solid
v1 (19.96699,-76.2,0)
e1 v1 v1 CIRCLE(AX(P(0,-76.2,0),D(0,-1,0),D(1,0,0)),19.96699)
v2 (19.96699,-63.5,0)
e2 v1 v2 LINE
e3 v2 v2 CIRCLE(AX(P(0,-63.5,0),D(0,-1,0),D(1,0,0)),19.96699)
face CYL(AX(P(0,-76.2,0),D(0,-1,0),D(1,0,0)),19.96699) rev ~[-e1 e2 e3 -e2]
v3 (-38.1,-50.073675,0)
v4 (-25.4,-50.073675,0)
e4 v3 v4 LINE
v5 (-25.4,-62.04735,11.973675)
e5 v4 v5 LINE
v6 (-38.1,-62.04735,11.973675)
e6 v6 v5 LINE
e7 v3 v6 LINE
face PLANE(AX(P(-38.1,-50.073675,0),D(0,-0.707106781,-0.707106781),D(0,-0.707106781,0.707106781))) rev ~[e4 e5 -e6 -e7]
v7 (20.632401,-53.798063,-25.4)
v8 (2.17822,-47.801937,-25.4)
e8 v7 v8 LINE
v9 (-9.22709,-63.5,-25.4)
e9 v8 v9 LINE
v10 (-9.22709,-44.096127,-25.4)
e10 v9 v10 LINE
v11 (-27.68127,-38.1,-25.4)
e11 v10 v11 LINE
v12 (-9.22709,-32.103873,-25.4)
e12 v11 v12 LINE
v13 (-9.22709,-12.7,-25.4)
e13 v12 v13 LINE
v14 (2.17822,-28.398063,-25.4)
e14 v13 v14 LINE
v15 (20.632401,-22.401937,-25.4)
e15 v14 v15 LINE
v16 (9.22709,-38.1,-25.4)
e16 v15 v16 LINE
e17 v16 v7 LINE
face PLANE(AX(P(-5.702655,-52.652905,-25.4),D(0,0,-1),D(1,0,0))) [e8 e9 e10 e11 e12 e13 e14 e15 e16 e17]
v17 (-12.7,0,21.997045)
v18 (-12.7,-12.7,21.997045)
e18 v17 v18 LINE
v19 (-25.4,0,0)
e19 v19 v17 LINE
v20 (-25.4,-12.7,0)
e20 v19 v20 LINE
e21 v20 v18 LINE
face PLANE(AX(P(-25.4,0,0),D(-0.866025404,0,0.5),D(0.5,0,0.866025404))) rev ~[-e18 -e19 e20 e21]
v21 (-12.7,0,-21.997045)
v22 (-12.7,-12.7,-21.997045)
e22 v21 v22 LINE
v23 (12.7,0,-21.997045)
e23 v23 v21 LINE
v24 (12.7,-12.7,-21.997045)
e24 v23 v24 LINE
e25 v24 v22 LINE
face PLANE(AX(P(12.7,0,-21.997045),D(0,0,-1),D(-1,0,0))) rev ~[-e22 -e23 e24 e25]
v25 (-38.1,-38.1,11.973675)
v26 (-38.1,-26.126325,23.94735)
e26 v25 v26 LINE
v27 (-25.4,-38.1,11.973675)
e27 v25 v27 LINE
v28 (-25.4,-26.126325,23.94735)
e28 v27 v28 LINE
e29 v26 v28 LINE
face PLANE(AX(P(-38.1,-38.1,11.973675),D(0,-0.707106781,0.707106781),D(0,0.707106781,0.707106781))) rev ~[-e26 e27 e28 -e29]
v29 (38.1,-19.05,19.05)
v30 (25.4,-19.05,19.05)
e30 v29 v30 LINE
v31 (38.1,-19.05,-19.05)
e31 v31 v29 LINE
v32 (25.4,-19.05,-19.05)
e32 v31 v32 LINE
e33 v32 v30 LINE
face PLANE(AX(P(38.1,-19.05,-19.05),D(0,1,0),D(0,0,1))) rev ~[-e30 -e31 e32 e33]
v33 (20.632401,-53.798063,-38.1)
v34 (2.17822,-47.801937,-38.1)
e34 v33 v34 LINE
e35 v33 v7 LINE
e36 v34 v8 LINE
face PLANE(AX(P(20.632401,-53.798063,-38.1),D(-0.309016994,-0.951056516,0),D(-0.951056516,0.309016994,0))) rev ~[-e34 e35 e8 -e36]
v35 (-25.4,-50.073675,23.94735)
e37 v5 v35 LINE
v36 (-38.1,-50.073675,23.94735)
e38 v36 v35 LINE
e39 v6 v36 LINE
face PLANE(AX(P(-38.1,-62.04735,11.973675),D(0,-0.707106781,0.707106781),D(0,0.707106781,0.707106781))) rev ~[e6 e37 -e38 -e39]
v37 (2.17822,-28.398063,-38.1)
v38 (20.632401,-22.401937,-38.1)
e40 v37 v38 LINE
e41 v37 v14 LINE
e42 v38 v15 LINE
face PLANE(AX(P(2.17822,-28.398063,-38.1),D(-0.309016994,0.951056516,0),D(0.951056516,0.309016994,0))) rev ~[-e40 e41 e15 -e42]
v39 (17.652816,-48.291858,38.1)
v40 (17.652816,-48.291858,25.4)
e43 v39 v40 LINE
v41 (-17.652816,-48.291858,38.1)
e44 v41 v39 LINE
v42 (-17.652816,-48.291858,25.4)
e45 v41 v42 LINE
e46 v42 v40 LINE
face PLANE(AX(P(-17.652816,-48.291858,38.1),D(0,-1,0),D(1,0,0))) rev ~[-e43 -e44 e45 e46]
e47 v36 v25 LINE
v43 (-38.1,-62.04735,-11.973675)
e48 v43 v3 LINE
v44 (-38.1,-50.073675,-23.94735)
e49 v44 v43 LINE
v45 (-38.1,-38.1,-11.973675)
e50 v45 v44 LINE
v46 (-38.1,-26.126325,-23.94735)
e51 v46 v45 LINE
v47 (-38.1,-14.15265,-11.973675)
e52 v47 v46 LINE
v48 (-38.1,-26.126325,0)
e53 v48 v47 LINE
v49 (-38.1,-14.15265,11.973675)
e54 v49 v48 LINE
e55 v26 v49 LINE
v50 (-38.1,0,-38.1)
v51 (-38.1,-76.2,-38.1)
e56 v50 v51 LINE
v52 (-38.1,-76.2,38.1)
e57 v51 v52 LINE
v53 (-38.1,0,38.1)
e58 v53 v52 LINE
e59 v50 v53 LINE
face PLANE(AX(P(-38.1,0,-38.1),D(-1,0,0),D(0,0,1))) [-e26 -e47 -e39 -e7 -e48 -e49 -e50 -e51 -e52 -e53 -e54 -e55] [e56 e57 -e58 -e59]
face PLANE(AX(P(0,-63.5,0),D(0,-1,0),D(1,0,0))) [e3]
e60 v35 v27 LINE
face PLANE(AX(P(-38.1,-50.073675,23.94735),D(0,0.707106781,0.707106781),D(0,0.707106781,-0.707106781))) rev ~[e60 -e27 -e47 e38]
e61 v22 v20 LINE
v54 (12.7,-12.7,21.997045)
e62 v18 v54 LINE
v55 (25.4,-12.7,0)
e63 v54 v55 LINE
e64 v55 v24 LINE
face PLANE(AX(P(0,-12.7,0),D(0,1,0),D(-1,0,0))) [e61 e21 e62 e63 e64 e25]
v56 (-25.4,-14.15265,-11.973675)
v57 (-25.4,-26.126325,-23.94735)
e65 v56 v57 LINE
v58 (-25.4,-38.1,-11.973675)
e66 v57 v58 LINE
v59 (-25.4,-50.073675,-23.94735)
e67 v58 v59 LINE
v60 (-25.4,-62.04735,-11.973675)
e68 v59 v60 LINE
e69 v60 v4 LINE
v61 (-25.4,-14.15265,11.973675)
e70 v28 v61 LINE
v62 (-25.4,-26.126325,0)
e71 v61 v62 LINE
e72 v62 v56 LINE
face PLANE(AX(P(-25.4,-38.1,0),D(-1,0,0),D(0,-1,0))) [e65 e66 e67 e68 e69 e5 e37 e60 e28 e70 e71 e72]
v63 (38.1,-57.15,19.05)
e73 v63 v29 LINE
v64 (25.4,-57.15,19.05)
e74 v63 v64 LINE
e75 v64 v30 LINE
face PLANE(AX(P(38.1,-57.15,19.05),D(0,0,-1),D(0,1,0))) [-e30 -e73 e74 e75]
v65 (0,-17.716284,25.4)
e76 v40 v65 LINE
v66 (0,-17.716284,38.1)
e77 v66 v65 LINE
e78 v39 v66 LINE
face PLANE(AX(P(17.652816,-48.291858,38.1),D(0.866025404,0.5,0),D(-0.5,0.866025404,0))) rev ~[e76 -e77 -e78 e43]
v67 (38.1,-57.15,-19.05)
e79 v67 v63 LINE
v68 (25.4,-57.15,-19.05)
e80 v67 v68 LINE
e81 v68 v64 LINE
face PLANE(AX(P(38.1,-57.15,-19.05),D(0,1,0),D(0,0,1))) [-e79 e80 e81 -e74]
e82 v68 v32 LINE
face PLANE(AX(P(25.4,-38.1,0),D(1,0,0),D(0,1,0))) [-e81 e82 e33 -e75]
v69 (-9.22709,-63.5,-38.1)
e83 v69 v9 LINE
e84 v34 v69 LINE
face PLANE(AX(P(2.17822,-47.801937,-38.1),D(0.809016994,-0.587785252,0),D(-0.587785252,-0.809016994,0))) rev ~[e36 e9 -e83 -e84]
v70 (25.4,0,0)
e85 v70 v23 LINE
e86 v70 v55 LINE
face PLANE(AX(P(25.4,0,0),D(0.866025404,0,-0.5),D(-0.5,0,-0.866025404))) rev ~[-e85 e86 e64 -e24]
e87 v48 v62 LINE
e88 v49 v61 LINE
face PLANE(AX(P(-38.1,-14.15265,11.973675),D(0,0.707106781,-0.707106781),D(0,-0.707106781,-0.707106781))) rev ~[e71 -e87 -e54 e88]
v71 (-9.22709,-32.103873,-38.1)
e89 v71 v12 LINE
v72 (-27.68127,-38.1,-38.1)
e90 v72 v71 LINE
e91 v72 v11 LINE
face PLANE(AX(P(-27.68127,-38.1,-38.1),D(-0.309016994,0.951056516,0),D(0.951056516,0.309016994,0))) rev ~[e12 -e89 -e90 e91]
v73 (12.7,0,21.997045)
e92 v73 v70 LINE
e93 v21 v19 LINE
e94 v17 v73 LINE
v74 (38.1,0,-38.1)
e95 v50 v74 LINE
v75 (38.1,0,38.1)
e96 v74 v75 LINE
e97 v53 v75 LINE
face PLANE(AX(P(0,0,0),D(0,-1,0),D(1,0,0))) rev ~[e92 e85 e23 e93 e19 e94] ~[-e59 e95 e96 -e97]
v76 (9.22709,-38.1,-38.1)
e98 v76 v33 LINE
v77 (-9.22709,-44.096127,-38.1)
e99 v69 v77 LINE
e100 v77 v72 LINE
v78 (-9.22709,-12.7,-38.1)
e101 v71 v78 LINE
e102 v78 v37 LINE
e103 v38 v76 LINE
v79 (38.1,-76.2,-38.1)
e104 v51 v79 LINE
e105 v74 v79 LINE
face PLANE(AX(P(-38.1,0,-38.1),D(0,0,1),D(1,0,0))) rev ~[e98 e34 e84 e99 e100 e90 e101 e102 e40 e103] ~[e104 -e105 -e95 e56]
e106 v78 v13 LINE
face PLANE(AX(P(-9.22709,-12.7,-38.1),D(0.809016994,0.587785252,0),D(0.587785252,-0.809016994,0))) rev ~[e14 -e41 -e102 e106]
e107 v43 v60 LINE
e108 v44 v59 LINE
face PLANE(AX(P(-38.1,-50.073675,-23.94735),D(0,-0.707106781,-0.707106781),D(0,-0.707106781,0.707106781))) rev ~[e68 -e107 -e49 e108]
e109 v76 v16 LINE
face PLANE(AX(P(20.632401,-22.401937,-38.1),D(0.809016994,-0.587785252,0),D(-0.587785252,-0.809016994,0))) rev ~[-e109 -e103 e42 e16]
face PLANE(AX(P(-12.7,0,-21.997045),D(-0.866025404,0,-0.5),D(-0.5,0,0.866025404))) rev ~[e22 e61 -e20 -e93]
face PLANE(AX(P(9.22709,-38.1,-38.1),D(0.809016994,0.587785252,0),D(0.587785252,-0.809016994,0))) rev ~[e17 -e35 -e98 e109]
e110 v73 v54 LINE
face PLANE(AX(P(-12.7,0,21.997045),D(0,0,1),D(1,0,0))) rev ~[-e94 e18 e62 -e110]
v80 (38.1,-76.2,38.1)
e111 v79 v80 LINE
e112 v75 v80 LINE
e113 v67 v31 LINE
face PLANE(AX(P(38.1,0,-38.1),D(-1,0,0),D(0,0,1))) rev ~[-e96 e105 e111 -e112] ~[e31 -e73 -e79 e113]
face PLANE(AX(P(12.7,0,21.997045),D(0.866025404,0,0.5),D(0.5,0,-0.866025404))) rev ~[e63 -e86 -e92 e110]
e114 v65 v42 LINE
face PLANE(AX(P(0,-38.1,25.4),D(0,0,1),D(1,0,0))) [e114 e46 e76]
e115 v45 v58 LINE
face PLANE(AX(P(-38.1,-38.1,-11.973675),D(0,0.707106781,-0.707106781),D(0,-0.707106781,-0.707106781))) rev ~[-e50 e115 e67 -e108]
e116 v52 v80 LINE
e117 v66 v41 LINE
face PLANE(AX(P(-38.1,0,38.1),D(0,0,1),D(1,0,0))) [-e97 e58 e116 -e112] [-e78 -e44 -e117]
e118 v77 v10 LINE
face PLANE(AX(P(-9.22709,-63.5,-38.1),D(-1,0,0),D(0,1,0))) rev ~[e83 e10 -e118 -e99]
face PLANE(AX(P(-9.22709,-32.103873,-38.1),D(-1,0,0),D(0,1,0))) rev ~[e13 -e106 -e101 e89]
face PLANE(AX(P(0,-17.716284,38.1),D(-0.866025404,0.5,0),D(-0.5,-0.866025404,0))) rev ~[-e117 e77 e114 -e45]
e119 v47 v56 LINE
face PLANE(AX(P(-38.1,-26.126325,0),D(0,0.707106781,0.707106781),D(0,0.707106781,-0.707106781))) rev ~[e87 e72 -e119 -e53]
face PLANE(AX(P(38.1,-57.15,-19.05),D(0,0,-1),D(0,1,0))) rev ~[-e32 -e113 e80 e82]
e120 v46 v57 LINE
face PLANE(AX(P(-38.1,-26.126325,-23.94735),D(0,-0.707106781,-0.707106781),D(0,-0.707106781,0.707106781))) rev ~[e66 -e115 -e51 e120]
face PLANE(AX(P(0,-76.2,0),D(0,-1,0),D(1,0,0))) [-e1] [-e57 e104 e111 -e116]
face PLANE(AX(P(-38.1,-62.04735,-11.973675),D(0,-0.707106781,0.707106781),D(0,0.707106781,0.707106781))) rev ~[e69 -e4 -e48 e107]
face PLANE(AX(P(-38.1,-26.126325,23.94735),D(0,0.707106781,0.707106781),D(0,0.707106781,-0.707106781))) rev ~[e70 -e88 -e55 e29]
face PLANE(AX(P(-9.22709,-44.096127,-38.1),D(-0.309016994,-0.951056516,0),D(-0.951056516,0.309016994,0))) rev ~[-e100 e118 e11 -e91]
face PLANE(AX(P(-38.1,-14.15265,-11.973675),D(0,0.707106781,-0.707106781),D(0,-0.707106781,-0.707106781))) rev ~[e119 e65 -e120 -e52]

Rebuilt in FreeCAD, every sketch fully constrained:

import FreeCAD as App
import Part
import Sketcher
Q = App.Units.Quantity


def add_polygon(sketch, points):
    """Adds a closed chain of lines whose ends are joined by coincident constraints."""
    first, n = sketch.GeometryCount, len(points)
    for a, b in zip(points, points[1:] + points[:1]):
        sketch.addGeometry(Part.LineSegment(App.Vector(*a, 0), App.Vector(*b, 0)), False)
    for i in range(n):
        sketch.addConstraint(Sketcher.Constraint("Coincident", first + i, 2, first + (i + 1) % n, 1))

doc = App.newDocument("Part")
body = doc.addObject("PartDesign::Body", "Body")

sketch1 = body.newObject("Sketcher::SketchObject", "Sketch")
sketch1.AttachmentSupport = (doc.getObject("XZ_Plane"), [""])
sketch1.MapMode = "FlatFace"
add_polygon(sketch1, [(-38, 38), (-38, -38), (38, -38), (38, 38)])
sketch1.addConstraint(Sketcher.Constraint("Vertical", 0))
sketch1.addConstraint(Sketcher.Constraint("Horizontal", 1))
sketch1.addConstraint(Sketcher.Constraint("Vertical", 2))
sketch1.addConstraint(Sketcher.Constraint("Horizontal", 3))
sketch1.addConstraint(Sketcher.Constraint("Symmetric", 0, 2, 2, 2, -1, 1))
sketch1.addConstraint(Sketcher.Constraint("Equal", 3, 0))
sketch1.addConstraint(Sketcher.Constraint("DistanceX", 1, 1, 1, 2, Q("3 in")))
pad1 = body.newObject("PartDesign::Pad", "Pad")
pad1.Profile = sketch1
pad1.Length = Q("3 in")

sketch2 = body.newObject("Sketcher::SketchObject", "Sketch001")
sketch2.AttachmentSupport = (doc.getObject("XZ_Plane"), [""])
sketch2.MapMode = "FlatFace"
sketch2.AttachmentOffset = App.Placement(App.Vector(0, 0, 3 * 25.4), App.Rotation())
sketch2.addGeometry(Part.Circle(App.Vector(0, 0, 0), App.Vector(0, 0, 1), 20), False)
sketch2.addConstraint(Sketcher.Constraint("Coincident", 0, 3, -1, 1))
sketch2.addConstraint(Sketcher.Constraint("Diameter", 0, Q("39.93398 mm")))
pocket1 = body.newObject("PartDesign::Pocket", "Pocket")
pocket1.Profile = sketch2
pocket1.Length = Q("0.5 in")

sketch3 = body.newObject("Sketcher::SketchObject", "Sketch002")
sketch3.AttachmentSupport = (doc.getObject("XY_Plane"), [""])
sketch3.MapMode = "FlatFace"
sketch3.AttachmentOffset = App.Placement(App.Vector(0, 0, 1.5 * 25.4), App.Rotation())
add_polygon(sketch3, [(18, -48), (0, -18), (-18, -48)])
sketch3.addConstraint(Sketcher.Constraint("Horizontal", 2))
sketch3.addConstraint(Sketcher.Constraint("PointOnObject", 0, 2, -2))
sketch3.addConstraint(Sketcher.Constraint("Equal", 0, 1))
sketch3.addConstraint(Sketcher.Constraint("Angle", 0, Q("120 deg")))
sketch3.addConstraint(Sketcher.Constraint("DistanceX", 2, 1, 2, 2, Q("35.305631 mm")))
sketch3.addConstraint(Sketcher.Constraint("DistanceY", 0, 2, -1, 1, Q("17.716284 mm")))
pocket2 = body.newObject("PartDesign::Pocket", "Pocket001")
pocket2.Profile = sketch3
pocket2.Length = Q("0.5 in")

sketch4 = body.newObject("Sketcher::SketchObject", "Sketch003")
sketch4.AttachmentSupport = (doc.getObject("YZ_Plane"), [""])
sketch4.MapMode = "FlatFace"
sketch4.AttachmentOffset = App.Placement(App.Vector(0, 0, 1.5 * 25.4), App.Rotation())
add_polygon(sketch4, [(-57, 19), (-57, -19), (-19, -19), (-19, 19)])
sketch4.addConstraint(Sketcher.Constraint("Vertical", 0))
sketch4.addConstraint(Sketcher.Constraint("Horizontal", 1))
sketch4.addConstraint(Sketcher.Constraint("Vertical", 2))
sketch4.addConstraint(Sketcher.Constraint("Horizontal", 3))
sketch4.addConstraint(Sketcher.Constraint("Equal", 3, 0))
sketch4.addConstraint(Sketcher.Constraint("DistanceX", 1, 1, 1, 2, Q("1.5 in")))
sketch4.addConstraint(Sketcher.Constraint("DistanceX", 0, 2, -1, 1, Q("2.25 in")))
sketch4.addConstraint(Sketcher.Constraint("DistanceY", 0, 2, -1, 1, Q("0.75 in")))
pocket3 = body.newObject("PartDesign::Pocket", "Pocket002")
pocket3.Profile = sketch4
pocket3.Length = Q("0.5 in")

sketch5 = body.newObject("Sketcher::SketchObject", "Sketch004")
sketch5.AttachmentSupport = (doc.getObject("YZ_Plane"), [""])
sketch5.MapMode = "FlatFace"
sketch5.AttachmentOffset = App.Placement(App.Vector(0, 0, -1.5 * 25.4), App.Rotation())
add_polygon(sketch5, [(-38, -12), (-50, -24), (-62, -12), (-50, 0), (-62, 12), (-50, 24), (-38, 12), (-26, 24), (-14, 12), (-26, 0), (-14, -12), (-26, -24)])
sketch5.addConstraint(Sketcher.Constraint("Symmetric", 1, 2, 3, 2, -1))
sketch5.addConstraint(Sketcher.Constraint("Symmetric", 0, 2, 4, 2, -1))
sketch5.addConstraint(Sketcher.Constraint("Symmetric", 7, 2, 9, 2, -1))
sketch5.addConstraint(Sketcher.Constraint("Symmetric", 6, 2, 10, 2, -1))
sketch5.addConstraint(Sketcher.Constraint("Symmetric", 5, 2, 11, 2, -1))
sketch5.addConstraint(Sketcher.Constraint("PointOnObject", 2, 2, -1))
sketch5.addConstraint(Sketcher.Constraint("PointOnObject", 8, 2, -1))
sketch5.addConstraint(Sketcher.Constraint("Perpendicular", 0, 1))
sketch5.addConstraint(Sketcher.Constraint("Perpendicular", 1, 2))
sketch5.addConstraint(Sketcher.Constraint("Perpendicular", 2, 3))
sketch5.addConstraint(Sketcher.Constraint("Perpendicular", 5, 6))
sketch5.addConstraint(Sketcher.Constraint("Perpendicular", 6, 7))
sketch5.addConstraint(Sketcher.Constraint("Perpendicular", 7, 8))
sketch5.addConstraint(Sketcher.Constraint("Horizontal", 3, 2, 5, 2))
sketch5.addConstraint(Sketcher.Constraint("Horizontal", 4, 2, 6, 2))
sketch5.addConstraint(Sketcher.Constraint("Horizontal", 5, 2, 7, 2))
sketch5.addConstraint(Sketcher.Constraint("Vertical", 0, 2, 2, 2))
sketch5.addConstraint(Sketcher.Constraint("DistanceX", 5, 2, -1, 1, Q("1.5 in")))
sketch5.addConstraint(Sketcher.Constraint("DistanceY", 0, 2, 4, 2, Q("47.894699 mm")))
pocket4 = body.newObject("PartDesign::Pocket", "Pocket003")
pocket4.Profile = sketch5
pocket4.Length = Q("0.5 in")
pocket4.Reversed = True

sketch6 = body.newObject("Sketcher::SketchObject", "Sketch005")
sketch6.AttachmentSupport = (doc.getObject("XZ_Plane"), [""])
sketch6.MapMode = "FlatFace"
add_polygon(sketch6, [(13, 22), (25, 0), (13, -22), (-13, -22), (-25, 0), (-13, 22)])
sketch6.addConstraint(Sketcher.Constraint("Horizontal", 2))
sketch6.addConstraint(Sketcher.Constraint("Horizontal", 5))
sketch6.addConstraint(Sketcher.Constraint("Symmetric", 0, 2, 3, 2, -1, 1))
sketch6.addConstraint(Sketcher.Constraint("Symmetric", 1, 2, 4, 2, -1, 1))
sketch6.addConstraint(Sketcher.Constraint("PointOnObject", 0, 2, -1))
sketch6.addConstraint(Sketcher.Constraint("Parallel", 0, 3))
sketch6.addConstraint(Sketcher.Constraint("Vertical", 2, 2, 4, 2))
sketch6.addConstraint(Sketcher.Constraint("DistanceX", 2, 2, 2, 1, Q("1 in")))
sketch6.addConstraint(Sketcher.Constraint("Distance", 0, Q("1 in")))
sketch6.addConstraint(Sketcher.Constraint("DistanceX", -1, 1, 0, 2, Q("1 in")))
pocket5 = body.newObject("PartDesign::Pocket", "Pocket004")
pocket5.Profile = sketch6
pocket5.Length = Q("0.5 in")
pocket5.Reversed = True

sketch7 = body.newObject("Sketcher::SketchObject", "Sketch006")
sketch7.AttachmentSupport = (doc.getObject("XY_Plane"), [""])
sketch7.MapMode = "FlatFace"
sketch7.AttachmentOffset = App.Placement(App.Vector(0, 0, -1.5 * 25.4), App.Rotation())
add_polygon(sketch7, [(2, -48), (-9, -64), (-9, -44), (-28, -38), (-9, -32), (-9, -13), (2, -28), (21, -22), (9, -38), (21, -54)])
sketch7.addConstraint(Sketcher.Constraint("Vertical", 1))
sketch7.addConstraint(Sketcher.Constraint("Vertical", 4))
sketch7.addConstraint(Sketcher.Constraint("Parallel", 3, 6))
sketch7.addConstraint(Sketcher.Constraint("Parallel", 0, 7))
sketch7.addConstraint(Sketcher.Constraint("Parallel", 5, 8))
sketch7.addConstraint(Sketcher.Constraint("Parallel", 2, 9))
sketch7.addConstraint(Sketcher.Constraint("Horizontal", 2, 2, 7, 2))
sketch7.addConstraint(Sketcher.Constraint("Vertical", 1, 2, 3, 2))
sketch7.addConstraint(Sketcher.Constraint("Vertical", 6, 2, 8, 2))
sketch7.addConstraint(Sketcher.Constraint("Vertical", 5, 2, 9, 2))
sketch7.addConstraint(Sketcher.Constraint("Equal", 1, 4))
sketch7.addConstraint(Sketcher.Constraint("Equal", 0, 2))
sketch7.addConstraint(Sketcher.Constraint("Equal", 3, 5))
sketch7.addConstraint(Sketcher.Constraint("Equal", 5, 6))
sketch7.addConstraint(Sketcher.Constraint("Equal", 6, 7))
sketch7.addConstraint(Sketcher.Constraint("Angle", 0, Q("-126 deg")))
sketch7.addConstraint(Sketcher.Constraint("Angle", 2, Q("162 deg")))
sketch7.addConstraint(Sketcher.Constraint("DistanceY", 0, 2, 2, 2, Q("1 in")))
sketch7.addConstraint(Sketcher.Constraint("DistanceY", 0, 2, -1, 1, Q("2.5 in")))
sketch7.addConstraint(Sketcher.Constraint("DistanceX", -1, 1, 6, 2, Q("20.632401 mm")))
pocket6 = body.newObject("PartDesign::Pocket", "Pocket005")
pocket6.Profile = sketch7
pocket6.Length = Q("0.5 in")
pocket6.Reversed = True

doc.recompute()
